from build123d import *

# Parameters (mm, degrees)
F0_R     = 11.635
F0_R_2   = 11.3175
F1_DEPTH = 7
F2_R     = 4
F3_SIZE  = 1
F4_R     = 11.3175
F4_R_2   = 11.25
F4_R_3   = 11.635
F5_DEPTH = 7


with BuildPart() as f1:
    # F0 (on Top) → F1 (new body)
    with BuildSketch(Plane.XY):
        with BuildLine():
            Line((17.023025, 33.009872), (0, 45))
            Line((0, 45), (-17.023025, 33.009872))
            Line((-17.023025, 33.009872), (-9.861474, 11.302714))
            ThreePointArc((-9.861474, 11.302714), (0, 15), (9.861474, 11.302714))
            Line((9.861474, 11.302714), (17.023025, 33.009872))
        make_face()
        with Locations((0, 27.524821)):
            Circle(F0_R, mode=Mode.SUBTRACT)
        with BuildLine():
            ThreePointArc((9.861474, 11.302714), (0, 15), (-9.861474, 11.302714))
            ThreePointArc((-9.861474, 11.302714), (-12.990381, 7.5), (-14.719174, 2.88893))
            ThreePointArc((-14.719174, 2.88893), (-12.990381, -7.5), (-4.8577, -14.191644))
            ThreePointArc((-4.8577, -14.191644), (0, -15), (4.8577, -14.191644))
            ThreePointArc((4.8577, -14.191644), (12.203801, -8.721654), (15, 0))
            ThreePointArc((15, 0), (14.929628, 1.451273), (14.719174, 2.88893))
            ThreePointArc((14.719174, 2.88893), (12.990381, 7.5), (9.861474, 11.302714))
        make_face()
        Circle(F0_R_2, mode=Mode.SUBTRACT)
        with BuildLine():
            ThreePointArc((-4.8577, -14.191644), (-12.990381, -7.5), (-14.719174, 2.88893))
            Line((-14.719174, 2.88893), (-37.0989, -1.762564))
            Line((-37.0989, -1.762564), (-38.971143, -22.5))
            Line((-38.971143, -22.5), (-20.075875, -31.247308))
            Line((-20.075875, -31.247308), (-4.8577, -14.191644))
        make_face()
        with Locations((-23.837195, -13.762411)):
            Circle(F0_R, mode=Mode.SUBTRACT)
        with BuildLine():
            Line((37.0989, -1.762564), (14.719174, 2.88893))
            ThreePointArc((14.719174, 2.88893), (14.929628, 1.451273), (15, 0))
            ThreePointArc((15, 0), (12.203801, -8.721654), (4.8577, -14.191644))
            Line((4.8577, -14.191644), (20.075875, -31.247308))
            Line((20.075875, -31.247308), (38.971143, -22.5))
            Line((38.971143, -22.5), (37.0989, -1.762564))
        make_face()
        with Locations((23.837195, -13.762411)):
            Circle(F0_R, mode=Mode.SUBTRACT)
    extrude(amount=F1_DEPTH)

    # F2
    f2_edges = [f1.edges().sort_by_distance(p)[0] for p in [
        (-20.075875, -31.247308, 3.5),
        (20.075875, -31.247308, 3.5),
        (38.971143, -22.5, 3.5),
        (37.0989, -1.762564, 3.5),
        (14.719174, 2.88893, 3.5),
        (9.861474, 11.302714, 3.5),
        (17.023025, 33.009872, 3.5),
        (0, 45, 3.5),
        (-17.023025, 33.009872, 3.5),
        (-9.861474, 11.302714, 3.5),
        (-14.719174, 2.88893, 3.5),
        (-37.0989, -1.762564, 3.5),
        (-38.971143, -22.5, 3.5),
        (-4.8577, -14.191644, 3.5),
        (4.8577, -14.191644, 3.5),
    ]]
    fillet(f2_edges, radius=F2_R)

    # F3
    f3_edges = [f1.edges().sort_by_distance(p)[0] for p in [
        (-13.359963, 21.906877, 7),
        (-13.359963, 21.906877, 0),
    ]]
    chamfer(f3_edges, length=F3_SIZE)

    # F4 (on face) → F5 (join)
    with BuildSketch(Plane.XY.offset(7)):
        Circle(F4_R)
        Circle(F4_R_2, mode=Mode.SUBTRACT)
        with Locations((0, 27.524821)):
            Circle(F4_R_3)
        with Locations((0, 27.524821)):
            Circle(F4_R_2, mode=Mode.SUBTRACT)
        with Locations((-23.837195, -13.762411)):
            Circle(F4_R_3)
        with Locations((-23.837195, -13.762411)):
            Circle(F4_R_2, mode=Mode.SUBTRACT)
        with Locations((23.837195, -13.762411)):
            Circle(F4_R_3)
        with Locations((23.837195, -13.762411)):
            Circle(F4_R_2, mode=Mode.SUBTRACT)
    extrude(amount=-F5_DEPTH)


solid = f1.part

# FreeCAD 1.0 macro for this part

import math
import FreeCAD as App
import Part
import Sketcher
from FreeCAD import Vector
Q = App.Units.Quantity


def edges_at(feature, points):
    """Names of the edges that pass closest to the given points."""
    edges = feature.Shape.Edges
    near = lambda p: min(range(len(edges)), key=lambda i: edges[i].distToShape(Part.Vertex(*p))[0])
    return sorted({f"Edge{near(p) + 1}" for p in points})

doc = App.newDocument("Part")
params = doc.addObject("Spreadsheet::Sheet", "Params")
for row, (alias, value) in enumerate([
    ("sketch1_diameter", "23.27 mm"),
    ("pad1_length", "7 mm"),
    ("fillet_radius", "4 mm"),
    ("chamfer_size", "1 mm"),
    ("sketch2_diameter", "22.5 mm"),
    ("sketch2_diameter2", "23.27 mm"),
    ("pad2_length", "7 mm"),
], start=1):
    params.set(f"A{row}", alias)
    params.set(f"B{row}", "=" + value)
    params.setAlias(f"B{row}", alias)

body = doc.addObject("PartDesign::Body", "Body")

sketch1 = doc.addObject("Sketcher::SketchObject", "Sketch")
body.addObject(sketch1)
sketch1.AttachmentSupport = (doc.XY_Plane, [""])
sketch1.MapMode = "FlatFace"
sketch1.addGeometry([
    Part.LineSegment(Vector(17, 33, 0), Vector(0, 45, 0)),
    Part.LineSegment(Vector(0, 45, 0), Vector(-17, 33, 0)),
    Part.LineSegment(Vector(-17, 33, 0), Vector(-10, 11, 0)),
    Part.ArcOfCircle(Part.Circle(Vector(0, 0, 0), Vector(0, 0, 1), 15), math.radians(131), math.radians(169)),
    Part.LineSegment(Vector(-15, 3, 0), Vector(-37, -2, 0)),
    Part.LineSegment(Vector(-37, -2, 0), Vector(-39, -22, 0)),
    Part.LineSegment(Vector(-39, -22, 0), Vector(-20, -31, 0)),
    Part.LineSegment(Vector(-20, -31, 0), Vector(-5, -14, 0)),
    Part.ArcOfCircle(Part.Circle(Vector(0, 0, 0), Vector(0, 0, 1), 15), math.radians(-109), math.radians(-71)),
    Part.LineSegment(Vector(5, -14, 0), Vector(20, -31, 0)),
    Part.LineSegment(Vector(20, -31, 0), Vector(39, -22, 0)),
    Part.LineSegment(Vector(39, -22, 0), Vector(37, -2, 0)),
    Part.LineSegment(Vector(37, -2, 0), Vector(15, 3, 0)),
    Part.ArcOfCircle(Part.Circle(Vector(0, 0, 0), Vector(0, 0, 1), 15), math.radians(11), math.radians(49)),
    Part.LineSegment(Vector(10, 11, 0), Vector(17, 33, 0)),
    Part.Circle(Vector(-24, -14, 0), Vector(0, 0, 1), 12),
    Part.Circle(Vector(24, -14, 0), Vector(0, 0, 1), 12),
    Part.Circle(Vector(0, 0, 0), Vector(0, 0, 1), 11),
    Part.Circle(Vector(0, 28, 0), Vector(0, 0, 1), 12),
], False)
sketch1.addConstraint([
    Sketcher.Constraint("Coincident", 0, 2, 1, 1),
    Sketcher.Constraint("Coincident", 1, 2, 2, 1),
    Sketcher.Constraint("Coincident", 2, 2, 3, 1),
    Sketcher.Constraint("Coincident", 3, 2, 4, 1),
    Sketcher.Constraint("Coincident", 4, 2, 5, 1),
    Sketcher.Constraint("Coincident", 5, 2, 6, 1),
    Sketcher.Constraint("Coincident", 6, 2, 7, 1),
    Sketcher.Constraint("Coincident", 7, 2, 8, 1),
    Sketcher.Constraint("Coincident", 8, 2, 9, 1),
    Sketcher.Constraint("Coincident", 9, 2, 10, 1),
    Sketcher.Constraint("Coincident", 10, 2, 11, 1),
    Sketcher.Constraint("Coincident", 11, 2, 12, 1),
    Sketcher.Constraint("Coincident", 12, 2, 13, 1),
    Sketcher.Constraint("Coincident", 13, 2, 14, 1),
    Sketcher.Constraint("Coincident", 14, 2, 0, 1),
    Sketcher.Constraint("Coincident", 3, 3, -1, 1),
    Sketcher.Constraint("Coincident", 8, 3, -1, 1),
    Sketcher.Constraint("Coincident", 13, 3, -1, 1),
    Sketcher.Constraint("Coincident", 17, 3, -1, 1),
    Sketcher.Constraint("Equal", 3, 8),
    Sketcher.Constraint("Equal", 8, 13),
    Sketcher.Constraint("Equal", 15, 16),
    Sketcher.Constraint("Equal", 16, 18),
    Sketcher.Constraint("Symmetric", 15, 3, 16, 3, -2),
    Sketcher.Constraint("Symmetric", 6, 2, 9, 2, -2),
    Sketcher.Constraint("Symmetric", 5, 2, 10, 2, -2),
    Sketcher.Constraint("Symmetric", 4, 2, 11, 2, -2),
    Sketcher.Constraint("Symmetric", 1, 2, 14, 2, -2),
    Sketcher.Constraint("PointOnObject", 18, 3, -2),
    Sketcher.Constraint("PointOnObject", 0, 2, -2),
    Sketcher.Constraint("Horizontal", 7, 2, 8, 2),
    Sketcher.Constraint("Horizontal", 3, 2, 12, 2),
    Sketcher.Constraint("Horizontal", 2, 2, 13, 2),
    Sketcher.Constraint("Equal", 2, 4),
    Sketcher.Constraint("Equal", 1, 5),
    Sketcher.Constraint("Equal", 5, 6),
    Sketcher.Constraint("Equal", 4, 7),
    Sketcher.Constraint("Diameter", 15, Q("23.27 mm")),
    Sketcher.Constraint("Diameter", 17, Q("22.635 mm")),
    Sketcher.Constraint("DistanceY", -1, 1, 0, 2, Q("45 mm")),
    Sketcher.Constraint("DistanceY", 5, 2, -1, 1, Q("22.5 mm")),
    Sketcher.Constraint("Radius", 3, Q("15.000005 mm")),
    Sketcher.Constraint("DistanceX", 4, 2, -1, 1, Q("37.0989 mm")),
    Sketcher.Constraint("DistanceX", 7, 2, -1, 1, Q("4.8577 mm")),
    Sketcher.Constraint("DistanceX", 15, 3, 3, 3, Q("23.8372 mm")),
    Sketcher.Constraint("DistanceX", 3, 2, 2, 2, Q("4.8577 mm")),
    Sketcher.Constraint("DistanceX", 6, 2, 3, 2, Q("5.356701 mm")),
    Sketcher.Constraint("Distance", 0, Q("20.821781 mm")),
    Sketcher.Constraint("Distance", 4, Q("22.858008 mm")),
    Sketcher.Constraint("DistanceY", 15, 3, -1, 1, Q("13.762411 mm")),
    Sketcher.Constraint("DistanceY", -1, 1, 18, 3, Q("27.524821 mm")),
])
sketch1.setExpression("Constraints[37]", "Params.sketch1_diameter")
pad1 = doc.addObject("PartDesign::Pad", "Pad")
body.addObject(pad1)
pad1.Profile = sketch1
pad1.setExpression("Length", "Params.pad1_length")
doc.recompute()

fillet = doc.addObject("PartDesign::Fillet", "Fillet")
body.addObject(fillet)
fillet.Base = (pad1, edges_at(pad1, [
    (-20.076, -31.247, 3.5),
    (20.076, -31.247, 3.5),
    (38.971, -22.5, 3.5),
    (37.099, -1.763, 3.5),
    (14.719, 2.889, 3.5),
    (9.861, 11.303, 3.5),
    (17.023, 33.01, 3.5),
    (0, 45, 3.5),
    (-17.023, 33.01, 3.5),
    (-9.861, 11.303, 3.5),
    (-14.719, 2.889, 3.5),
    (-37.099, -1.763, 3.5),
    (-38.971, -22.5, 3.5),
    (-4.858, -14.192, 3.5),
    (4.858, -14.192, 3.5),
]))
fillet.setExpression("Radius", "Params.fillet_radius")
doc.recompute()

chamfer = doc.addObject("PartDesign::Chamfer", "Chamfer")
body.addObject(chamfer)
chamfer.Base = (fillet, edges_at(fillet, [(-13.36, 21.907, 7), (-13.36, 21.907, 0)]))
chamfer.setExpression("Size", "Params.chamfer_size")

sketch2 = doc.addObject("Sketcher::SketchObject", "Sketch001")
body.addObject(sketch2)
sketch2.AttachmentSupport = (doc.XY_Plane, [""])
sketch2.MapMode = "FlatFace"
sketch2.AttachmentOffset = App.Placement(Vector(0, 0, 7), App.Rotation())
sketch2.addGeometry([
    Part.Circle(Vector(0, 0, 0), Vector(0, 0, 1), 11),
    Part.Circle(Vector(0, 0, 0), Vector(0, 0, 1), 11),
    Part.Circle(Vector(0, 28, 0), Vector(0, 0, 1), 12),
    Part.Circle(Vector(0, 28, 0), Vector(0, 0, 1), 11),
    Part.Circle(Vector(-24, -14, 0), Vector(0, 0, 1), 12),
    Part.Circle(Vector(-24, -14, 0), Vector(0, 0, 1), 11),
    Part.Circle(Vector(24, -14, 0), Vector(0, 0, 1), 12),
    Part.Circle(Vector(24, -14, 0), Vector(0, 0, 1), 11),
], False)
sketch2.addConstraint([
    Sketcher.Constraint("Coincident", 0, 3, -1, 1),
    Sketcher.Constraint("Coincident", 1, 3, -1, 1),
    Sketcher.Constraint("Coincident", 3, 3, 2, 3),
    Sketcher.Constraint("Coincident", 5, 3, 4, 3),
    Sketcher.Constraint("Coincident", 7, 3, 6, 3),
    Sketcher.Constraint("Equal", 1, 3),
    Sketcher.Constraint("Equal", 2, 4),
    Sketcher.Constraint("Equal", 3, 5),
    Sketcher.Constraint("Equal", 4, 6),
    Sketcher.Constraint("Equal", 5, 7),
    Sketcher.Constraint("Symmetric", 4, 3, 6, 3, -2),
    Sketcher.Constraint("PointOnObject", 2, 3, -2),
    Sketcher.Constraint("Diameter", 1, Q("22.5 mm")),
    Sketcher.Constraint("Diameter", 2, Q("23.27 mm")),
    Sketcher.Constraint("Diameter", 0, Q("22.635 mm")),
    Sketcher.Constraint("DistanceY", -1, 1, 2, 3, Q("27.524821 mm")),
    Sketcher.Constraint("DistanceY", 4, 3, -1, 1, Q("13.762411 mm")),
    Sketcher.Constraint("DistanceX", 4, 3, 6, 3, Q("47.67439 mm")),
])
sketch2.setExpression("Constraints[12]", "Params.sketch2_diameter")
sketch2.setExpression("Constraints[13]", "Params.sketch2_diameter2")
pad2 = doc.addObject("PartDesign::Pad", "Pad001")
body.addObject(pad2)
pad2.Profile = sketch2
pad2.setExpression("Length", "Params.pad2_length")
pad2.Reversed = True

doc.recompute()
